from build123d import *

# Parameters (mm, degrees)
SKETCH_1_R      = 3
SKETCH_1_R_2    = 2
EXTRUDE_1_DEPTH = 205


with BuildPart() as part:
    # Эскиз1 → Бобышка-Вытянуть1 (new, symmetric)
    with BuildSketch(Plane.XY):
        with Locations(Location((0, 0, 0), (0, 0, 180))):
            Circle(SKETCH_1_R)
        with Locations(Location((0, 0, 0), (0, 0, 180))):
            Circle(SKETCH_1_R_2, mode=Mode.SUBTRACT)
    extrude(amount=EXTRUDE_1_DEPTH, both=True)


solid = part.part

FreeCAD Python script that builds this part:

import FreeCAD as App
import Part
import Sketcher

doc = App.newDocument("Part")
body = doc.addObject("PartDesign::Body", "Body")

sketch1 = doc.addObject("Sketcher::SketchObject", "Sketch")
body.addObject(sketch1)
sketch1.AttachmentSupport = (doc.XY_Plane, [""])
sketch1.MapMode = "FlatFace"
sketch1.addGeometry([
    Part.Circle(App.Vector(0, 0, 0), App.Vector(0, 0, 1), 3),
    Part.Circle(App.Vector(0, 0, 0), App.Vector(0, 0, 1), 2),
], False)
sketch1.addConstraint([
    Sketcher.Constraint("Coincident", 0, 3, -1, 1),
    Sketcher.Constraint("Coincident", 1, 3, -1, 1),
    Sketcher.Constraint("Diameter", 0, 6.0),
    Sketcher.Constraint("Diameter", 1, 4.0),
])
pad1 = doc.addObject("PartDesign::Pad", "Pad")
body.addObject(pad1)
pad1.Profile = sketch1
pad1.Length = 410
pad1.Midplane = True

doc.recompute()
